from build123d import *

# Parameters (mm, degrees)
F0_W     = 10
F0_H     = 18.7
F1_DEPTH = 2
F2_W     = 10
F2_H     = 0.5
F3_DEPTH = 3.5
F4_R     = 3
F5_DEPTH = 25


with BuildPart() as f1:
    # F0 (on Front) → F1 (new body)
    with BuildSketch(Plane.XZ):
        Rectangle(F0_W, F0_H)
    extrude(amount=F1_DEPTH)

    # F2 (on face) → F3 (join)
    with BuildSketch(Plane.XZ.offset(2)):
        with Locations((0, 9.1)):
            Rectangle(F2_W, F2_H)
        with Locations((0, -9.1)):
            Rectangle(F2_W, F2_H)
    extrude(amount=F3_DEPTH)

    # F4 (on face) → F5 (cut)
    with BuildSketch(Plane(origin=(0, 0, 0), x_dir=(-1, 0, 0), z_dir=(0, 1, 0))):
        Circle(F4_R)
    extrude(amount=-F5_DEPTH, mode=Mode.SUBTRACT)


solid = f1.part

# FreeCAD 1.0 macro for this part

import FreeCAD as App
import Part
import Sketcher

V = App.Vector

doc = App.newDocument("Part")
params = doc.addObject("Spreadsheet::Sheet", "Params")
for row, (alias, value) in enumerate([
    ("sketch1_width", "10 mm"),
    ("sketch1_height", "18.7 mm"),
    ("pad1_length", "2 mm"),
    ("sketch2_width", "10 mm"),
    ("sketch2_height", "0.5 mm"),
    ("pad2_length", "3.5 mm"),
    ("sketch3_diameter", "6 mm"),
    ("pocket1_length", "25 mm"),
], start=1):
    params.set(f"A{row}", alias)
    params.set(f"B{row}", "=" + value)
    params.setAlias(f"B{row}", alias)

body = doc.addObject("PartDesign::Body", "Body")

sketch1 = doc.addObject("Sketcher::SketchObject", "Sketch")
body.addObject(sketch1)
sketch1.AttachmentSupport = (doc.XZ_Plane, [""])
sketch1.MapMode = "FlatFace"
sketch1.addGeometry([
    Part.LineSegment(V(-5, 9, 0), V(-5, -9, 0)),
    Part.LineSegment(V(-5, -9, 0), V(5, -9, 0)),
    Part.LineSegment(V(5, -9, 0), V(5, 9, 0)),
    Part.LineSegment(V(5, 9, 0), V(-5, 9, 0)),
], False)
sketch1.addConstraint([
    Sketcher.Constraint("Coincident", 0, 2, 1, 1),
    Sketcher.Constraint("Coincident", 1, 2, 2, 1),
    Sketcher.Constraint("Coincident", 2, 2, 3, 1),
    Sketcher.Constraint("Coincident", 3, 2, 0, 1),
    Sketcher.Constraint("Vertical", 0),
    Sketcher.Constraint("Horizontal", 1),
    Sketcher.Constraint("Vertical", 2),
    Sketcher.Constraint("Horizontal", 3),
    Sketcher.Constraint("Symmetric", 0, 2, 2, 2, -1, 1),
    Sketcher.Constraint("DistanceX", 1, 1, 1, 2, 10.0),
    Sketcher.Constraint("DistanceY", 0, 2, 0, 1, 18.7),
])
sketch1.setExpression("Constraints[9]", "Params.sketch1_width")
sketch1.setExpression("Constraints[10]", "Params.sketch1_height")
pad1 = doc.addObject("PartDesign::Pad", "Pad")
body.addObject(pad1)
pad1.Profile = sketch1
pad1.setExpression("Length", "Params.pad1_length")

sketch2 = doc.addObject("Sketcher::SketchObject", "Sketch001")
body.addObject(sketch2)
sketch2.AttachmentSupport = (doc.XZ_Plane, [""])
sketch2.MapMode = "FlatFace"
sketch2.AttachmentOffset = App.Placement(V(0, 0, 2), App.Rotation())
sketch2.addGeometry([
    Part.LineSegment(V(-5, 9.3, 0), V(-5, 8.8, 0)),
    Part.LineSegment(V(-5, 8.8, 0), V(5, 8.8, 0)),
    Part.LineSegment(V(5, 8.8, 0), V(5, 9.3, 0)),
    Part.LineSegment(V(5, 9.3, 0), V(-5, 9.3, 0)),
    Part.LineSegment(V(-5, -8.8, 0), V(-5, -9.3, 0)),
    Part.LineSegment(V(-5, -9.3, 0), V(5, -9.3, 0)),
    Part.LineSegment(V(5, -9.3, 0), V(5, -8.8, 0)),
    Part.LineSegment(V(5, -8.8, 0), V(-5, -8.8, 0)),
], False)
sketch2.addConstraint([
    Sketcher.Constraint("Coincident", 0, 2, 1, 1),
    Sketcher.Constraint("Coincident", 1, 2, 2, 1),
    Sketcher.Constraint("Coincident", 2, 2, 3, 1),
    Sketcher.Constraint("Coincident", 3, 2, 0, 1),
    Sketcher.Constraint("Coincident", 4, 2, 5, 1),
    Sketcher.Constraint("Coincident", 5, 2, 6, 1),
    Sketcher.Constraint("Coincident", 6, 2, 7, 1),
    Sketcher.Constraint("Coincident", 7, 2, 4, 1),
    Sketcher.Constraint("Vertical", 0),
    Sketcher.Constraint("Horizontal", 1),
    Sketcher.Constraint("Vertical", 2),
    Sketcher.Constraint("Horizontal", 3),
    Sketcher.Constraint("Vertical", 4),
    Sketcher.Constraint("Horizontal", 5),
    Sketcher.Constraint("Vertical", 6),
    Sketcher.Constraint("Horizontal", 7),
    Sketcher.Constraint("Symmetric", 2, 2, 4, 2, -1, 1),
    Sketcher.Constraint("Symmetric", 0, 2, 6, 2, -1, 1),
    Sketcher.Constraint("Vertical", 3, 2, 4, 2),
    Sketcher.Constraint("DistanceX", 1, 1, 1, 2, 10.0),
    Sketcher.Constraint("DistanceY", 0, 2, 0, 1, 0.5),
    Sketcher.Constraint("DistanceY", 4, 2, 0, 2, 18.2),
])
sketch2.setExpression("Constraints[19]", "Params.sketch2_width")
sketch2.setExpression("Constraints[20]", "Params.sketch2_height")
pad2 = doc.addObject("PartDesign::Pad", "Pad001")
body.addObject(pad2)
pad2.Profile = sketch2
pad2.setExpression("Length", "Params.pad2_length")

sketch3 = doc.addObject("Sketcher::SketchObject", "Sketch002")
body.addObject(sketch3)
sketch3.AttachmentSupport = (doc.XZ_Plane, [""])
sketch3.MapMode = "FlatFace"
sketch3.addGeometry(Part.Circle(V(0, 0, 0), V(0, 0, 1), 3), False)
sketch3.addConstraint([
    Sketcher.Constraint("Coincident", 0, 3, -1, 1),
    Sketcher.Constraint("Diameter", 0, 6.0),
])
sketch3.setExpression("Constraints[1]", "Params.sketch3_diameter")
pocket1 = doc.addObject("PartDesign::Pocket", "Pocket")
body.addObject(pocket1)
pocket1.Profile = sketch3
pocket1.setExpression("Length", "Params.pocket1_length")
pocket1.Reversed = True

doc.recompute()
